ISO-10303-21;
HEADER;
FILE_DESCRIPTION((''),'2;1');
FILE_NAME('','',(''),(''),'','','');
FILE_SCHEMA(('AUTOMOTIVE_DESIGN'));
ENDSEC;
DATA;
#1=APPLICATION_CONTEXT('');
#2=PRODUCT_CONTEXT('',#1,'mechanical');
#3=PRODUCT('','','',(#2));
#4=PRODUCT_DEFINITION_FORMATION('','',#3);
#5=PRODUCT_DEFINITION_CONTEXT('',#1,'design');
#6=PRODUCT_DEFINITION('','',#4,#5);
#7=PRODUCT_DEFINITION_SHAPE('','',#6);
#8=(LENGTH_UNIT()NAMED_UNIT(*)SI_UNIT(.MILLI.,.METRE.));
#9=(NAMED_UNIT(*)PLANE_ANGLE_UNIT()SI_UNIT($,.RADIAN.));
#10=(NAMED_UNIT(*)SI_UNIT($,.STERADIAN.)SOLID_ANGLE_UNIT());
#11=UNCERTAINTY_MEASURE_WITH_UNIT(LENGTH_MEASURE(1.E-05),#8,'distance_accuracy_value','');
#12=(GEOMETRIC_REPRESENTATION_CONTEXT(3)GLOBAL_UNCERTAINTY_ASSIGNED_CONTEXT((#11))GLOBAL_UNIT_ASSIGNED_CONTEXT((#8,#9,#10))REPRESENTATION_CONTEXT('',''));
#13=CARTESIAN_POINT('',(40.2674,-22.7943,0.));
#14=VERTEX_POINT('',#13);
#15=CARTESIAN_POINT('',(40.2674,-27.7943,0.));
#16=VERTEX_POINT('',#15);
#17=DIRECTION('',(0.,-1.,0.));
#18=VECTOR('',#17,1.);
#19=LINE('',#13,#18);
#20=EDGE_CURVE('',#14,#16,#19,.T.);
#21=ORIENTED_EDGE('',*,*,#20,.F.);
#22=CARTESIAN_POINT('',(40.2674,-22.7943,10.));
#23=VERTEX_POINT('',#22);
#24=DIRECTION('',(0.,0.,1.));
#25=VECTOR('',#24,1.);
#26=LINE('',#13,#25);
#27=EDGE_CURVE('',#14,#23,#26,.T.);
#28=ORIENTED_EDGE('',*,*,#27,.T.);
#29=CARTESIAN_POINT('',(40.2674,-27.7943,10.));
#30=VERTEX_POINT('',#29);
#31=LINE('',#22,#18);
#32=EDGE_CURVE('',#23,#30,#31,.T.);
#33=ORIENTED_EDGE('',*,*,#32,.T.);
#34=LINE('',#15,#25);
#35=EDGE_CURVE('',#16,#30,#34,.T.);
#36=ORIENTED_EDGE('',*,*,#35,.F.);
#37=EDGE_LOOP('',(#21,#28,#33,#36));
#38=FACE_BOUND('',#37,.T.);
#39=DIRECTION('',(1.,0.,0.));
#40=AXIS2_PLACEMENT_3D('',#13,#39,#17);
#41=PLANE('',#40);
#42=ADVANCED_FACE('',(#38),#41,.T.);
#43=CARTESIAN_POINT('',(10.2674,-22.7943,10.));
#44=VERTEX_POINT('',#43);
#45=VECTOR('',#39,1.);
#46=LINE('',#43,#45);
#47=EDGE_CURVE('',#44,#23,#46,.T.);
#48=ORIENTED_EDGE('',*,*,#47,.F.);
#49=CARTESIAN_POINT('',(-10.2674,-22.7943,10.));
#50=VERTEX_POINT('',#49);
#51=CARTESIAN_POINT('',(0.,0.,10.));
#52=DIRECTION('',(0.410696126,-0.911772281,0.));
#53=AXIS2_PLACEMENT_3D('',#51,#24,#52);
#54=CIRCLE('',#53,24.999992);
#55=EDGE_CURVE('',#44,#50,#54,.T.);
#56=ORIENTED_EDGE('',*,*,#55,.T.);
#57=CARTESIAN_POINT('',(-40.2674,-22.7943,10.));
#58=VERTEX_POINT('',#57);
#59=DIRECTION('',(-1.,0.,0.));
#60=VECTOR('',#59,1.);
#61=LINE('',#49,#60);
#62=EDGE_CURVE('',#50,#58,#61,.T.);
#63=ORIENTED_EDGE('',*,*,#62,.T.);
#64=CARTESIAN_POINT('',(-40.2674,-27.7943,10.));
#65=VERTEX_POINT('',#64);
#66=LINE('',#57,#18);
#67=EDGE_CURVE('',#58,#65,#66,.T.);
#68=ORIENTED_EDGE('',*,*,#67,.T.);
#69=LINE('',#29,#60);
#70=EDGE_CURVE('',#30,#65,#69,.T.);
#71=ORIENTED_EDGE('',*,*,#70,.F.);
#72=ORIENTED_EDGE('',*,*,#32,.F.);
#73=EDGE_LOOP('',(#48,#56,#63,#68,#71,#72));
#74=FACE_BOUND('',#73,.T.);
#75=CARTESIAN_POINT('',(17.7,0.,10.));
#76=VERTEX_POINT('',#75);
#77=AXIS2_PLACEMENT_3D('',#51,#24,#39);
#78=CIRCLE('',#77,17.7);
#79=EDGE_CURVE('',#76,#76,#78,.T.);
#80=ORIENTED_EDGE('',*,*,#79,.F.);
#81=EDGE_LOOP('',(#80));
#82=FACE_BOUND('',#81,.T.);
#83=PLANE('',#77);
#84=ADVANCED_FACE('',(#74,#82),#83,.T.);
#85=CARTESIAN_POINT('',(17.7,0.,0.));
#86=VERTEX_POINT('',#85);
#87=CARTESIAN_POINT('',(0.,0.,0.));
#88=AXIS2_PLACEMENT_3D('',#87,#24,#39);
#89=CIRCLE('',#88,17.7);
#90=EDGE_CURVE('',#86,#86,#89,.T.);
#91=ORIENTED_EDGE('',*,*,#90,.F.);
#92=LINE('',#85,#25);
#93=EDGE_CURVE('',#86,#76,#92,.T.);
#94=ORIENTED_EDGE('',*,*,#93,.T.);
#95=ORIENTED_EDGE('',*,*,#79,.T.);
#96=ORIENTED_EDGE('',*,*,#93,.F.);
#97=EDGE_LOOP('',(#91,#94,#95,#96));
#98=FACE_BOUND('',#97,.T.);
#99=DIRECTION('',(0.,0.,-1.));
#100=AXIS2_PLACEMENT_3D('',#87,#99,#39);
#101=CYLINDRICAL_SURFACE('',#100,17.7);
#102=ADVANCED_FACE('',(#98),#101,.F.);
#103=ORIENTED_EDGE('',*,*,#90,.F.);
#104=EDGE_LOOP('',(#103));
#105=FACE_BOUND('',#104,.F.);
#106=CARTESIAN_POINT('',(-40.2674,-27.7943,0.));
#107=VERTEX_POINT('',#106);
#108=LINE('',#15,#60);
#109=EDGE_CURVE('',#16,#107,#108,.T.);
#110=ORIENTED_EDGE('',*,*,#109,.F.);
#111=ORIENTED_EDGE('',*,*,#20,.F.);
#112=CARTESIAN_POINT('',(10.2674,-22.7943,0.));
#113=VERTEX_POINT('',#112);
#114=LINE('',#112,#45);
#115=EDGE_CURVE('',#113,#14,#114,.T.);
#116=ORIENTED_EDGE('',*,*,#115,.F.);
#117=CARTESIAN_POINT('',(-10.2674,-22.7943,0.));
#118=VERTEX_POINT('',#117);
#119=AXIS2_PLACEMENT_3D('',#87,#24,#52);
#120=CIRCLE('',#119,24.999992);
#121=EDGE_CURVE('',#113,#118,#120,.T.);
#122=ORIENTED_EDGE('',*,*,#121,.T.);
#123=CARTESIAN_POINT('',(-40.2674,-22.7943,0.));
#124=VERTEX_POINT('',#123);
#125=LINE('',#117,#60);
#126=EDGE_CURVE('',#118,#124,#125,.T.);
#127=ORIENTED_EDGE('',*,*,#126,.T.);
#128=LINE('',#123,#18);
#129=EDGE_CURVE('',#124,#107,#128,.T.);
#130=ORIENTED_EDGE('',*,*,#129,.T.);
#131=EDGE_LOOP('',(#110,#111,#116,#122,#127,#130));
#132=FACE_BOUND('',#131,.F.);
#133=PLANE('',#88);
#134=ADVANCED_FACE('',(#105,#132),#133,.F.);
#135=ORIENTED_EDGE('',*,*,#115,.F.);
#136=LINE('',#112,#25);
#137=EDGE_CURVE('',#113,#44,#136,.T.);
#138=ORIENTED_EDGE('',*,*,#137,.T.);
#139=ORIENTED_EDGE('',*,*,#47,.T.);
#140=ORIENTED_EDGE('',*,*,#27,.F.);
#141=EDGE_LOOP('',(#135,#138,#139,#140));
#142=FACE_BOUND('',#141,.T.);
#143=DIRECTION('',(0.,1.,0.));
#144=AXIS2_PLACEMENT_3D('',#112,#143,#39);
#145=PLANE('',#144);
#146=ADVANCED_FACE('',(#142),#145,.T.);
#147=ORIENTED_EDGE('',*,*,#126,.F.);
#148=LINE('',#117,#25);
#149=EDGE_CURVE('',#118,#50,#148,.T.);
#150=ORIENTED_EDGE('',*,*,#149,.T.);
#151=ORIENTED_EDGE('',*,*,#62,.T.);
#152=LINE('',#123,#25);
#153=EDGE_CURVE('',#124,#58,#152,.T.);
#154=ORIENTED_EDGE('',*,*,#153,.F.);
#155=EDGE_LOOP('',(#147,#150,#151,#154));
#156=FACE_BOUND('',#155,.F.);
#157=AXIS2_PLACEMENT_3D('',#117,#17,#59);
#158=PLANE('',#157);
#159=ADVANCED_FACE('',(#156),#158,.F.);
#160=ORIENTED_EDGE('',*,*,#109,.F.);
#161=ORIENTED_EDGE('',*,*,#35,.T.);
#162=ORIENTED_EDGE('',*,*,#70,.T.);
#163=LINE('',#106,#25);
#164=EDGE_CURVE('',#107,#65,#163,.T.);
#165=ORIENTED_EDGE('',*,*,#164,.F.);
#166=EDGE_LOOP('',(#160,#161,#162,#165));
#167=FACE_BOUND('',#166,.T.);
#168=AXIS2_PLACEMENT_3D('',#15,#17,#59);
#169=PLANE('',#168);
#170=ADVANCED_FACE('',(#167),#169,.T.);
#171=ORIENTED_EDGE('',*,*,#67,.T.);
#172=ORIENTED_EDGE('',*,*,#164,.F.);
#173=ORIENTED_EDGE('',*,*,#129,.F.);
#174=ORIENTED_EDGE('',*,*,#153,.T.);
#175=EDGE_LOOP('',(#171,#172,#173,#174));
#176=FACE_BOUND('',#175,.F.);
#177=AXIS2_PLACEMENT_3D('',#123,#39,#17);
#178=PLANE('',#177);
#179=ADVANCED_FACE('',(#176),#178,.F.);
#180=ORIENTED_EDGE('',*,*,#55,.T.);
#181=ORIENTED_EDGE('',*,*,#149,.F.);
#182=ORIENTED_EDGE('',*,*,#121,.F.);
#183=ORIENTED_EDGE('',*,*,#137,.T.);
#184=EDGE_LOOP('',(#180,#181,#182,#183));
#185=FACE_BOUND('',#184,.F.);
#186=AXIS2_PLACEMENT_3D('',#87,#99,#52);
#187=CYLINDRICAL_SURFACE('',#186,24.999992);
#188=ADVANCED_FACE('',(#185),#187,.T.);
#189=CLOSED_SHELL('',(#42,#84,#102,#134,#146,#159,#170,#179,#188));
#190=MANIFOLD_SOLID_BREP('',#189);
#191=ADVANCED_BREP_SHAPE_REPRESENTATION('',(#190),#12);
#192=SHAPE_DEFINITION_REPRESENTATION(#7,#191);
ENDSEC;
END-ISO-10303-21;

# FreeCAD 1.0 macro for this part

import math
import FreeCAD as App
import Part
import Sketcher
from FreeCAD import Vector

doc = App.newDocument("Part")
body = doc.addObject("PartDesign::Body", "Body")

# Sketch on XY plane
sketch1 = doc.addObject("Sketcher::SketchObject", "Sketch")
body.addObject(sketch1)
sketch1.AttachmentSupport = (doc.XY_Plane, [""])
sketch1.MapMode = "FlatFace"
sketch1.addGeometry([
    Part.LineSegment(Vector(40.2674, -22.7943, 0), Vector(10.2674, -22.7943, 0)),  # 0
    Part.ArcOfCircle(Part.Circle(Vector(0, 0, 0), Vector(0, 0, 1), 24.999992), math.radians(-65.751428), math.radians(245.751428)),  # 1
    Part.LineSegment(Vector(-10.2674, -22.7943, 0), Vector(-40.2674, -22.7943, 0)),  # 2
    Part.LineSegment(Vector(-40.2674, -22.7943, 0), Vector(-40.2674, -27.7943, 0)),  # 3
    Part.LineSegment(Vector(-40.2674, -27.7943, 0), Vector(40.2674, -27.7943, 0)),  # 4
    Part.LineSegment(Vector(40.2674, -27.7943, 0), Vector(40.2674, -22.7943, 0)),  # 5
    Part.Circle(Vector(0, 0, 0), Vector(0, 0, 1), 17.7),  # 6
], False)
sketch1.addConstraint([
    Sketcher.Constraint("Coincident", 0, 2, 1, 1),
    Sketcher.Constraint("Coincident", 1, 2, 2, 1),
    Sketcher.Constraint("Coincident", 2, 2, 3, 1),
    Sketcher.Constraint("Coincident", 3, 2, 4, 1),
    Sketcher.Constraint("Coincident", 4, 2, 5, 1),
    Sketcher.Constraint("Coincident", 5, 2, 0, 1),
    Sketcher.Constraint("Horizontal", 0),
    Sketcher.Constraint("Horizontal", 2),
    Sketcher.Constraint("Vertical", 3),
    Sketcher.Constraint("Horizontal", 4),
    Sketcher.Constraint("Vertical", 5),
    Sketcher.Constraint("Coincident", 1, 3, -1, 1),
    Sketcher.Constraint("Coincident", 6, 3, -1, 1),
    Sketcher.Constraint("Symmetric", 2, 2, 5, 2, -2),
    Sketcher.Constraint("Radius", 1, 25.0),
    Sketcher.Constraint("Diameter", 6, 35.4),
    Sketcher.Constraint("DistanceX", 0, 2, 0, 1, 30.0),
    Sketcher.Constraint("DistanceY", 3, 2, 3, 1, 5.0),
    Sketcher.Constraint("DistanceX", 4, 1, 4, 2, 80.5348),
])
pad1 = doc.addObject("PartDesign::Pad", "Pad")
body.addObject(pad1)
pad1.Profile = sketch1
pad1.Length = 10

doc.recompute()
